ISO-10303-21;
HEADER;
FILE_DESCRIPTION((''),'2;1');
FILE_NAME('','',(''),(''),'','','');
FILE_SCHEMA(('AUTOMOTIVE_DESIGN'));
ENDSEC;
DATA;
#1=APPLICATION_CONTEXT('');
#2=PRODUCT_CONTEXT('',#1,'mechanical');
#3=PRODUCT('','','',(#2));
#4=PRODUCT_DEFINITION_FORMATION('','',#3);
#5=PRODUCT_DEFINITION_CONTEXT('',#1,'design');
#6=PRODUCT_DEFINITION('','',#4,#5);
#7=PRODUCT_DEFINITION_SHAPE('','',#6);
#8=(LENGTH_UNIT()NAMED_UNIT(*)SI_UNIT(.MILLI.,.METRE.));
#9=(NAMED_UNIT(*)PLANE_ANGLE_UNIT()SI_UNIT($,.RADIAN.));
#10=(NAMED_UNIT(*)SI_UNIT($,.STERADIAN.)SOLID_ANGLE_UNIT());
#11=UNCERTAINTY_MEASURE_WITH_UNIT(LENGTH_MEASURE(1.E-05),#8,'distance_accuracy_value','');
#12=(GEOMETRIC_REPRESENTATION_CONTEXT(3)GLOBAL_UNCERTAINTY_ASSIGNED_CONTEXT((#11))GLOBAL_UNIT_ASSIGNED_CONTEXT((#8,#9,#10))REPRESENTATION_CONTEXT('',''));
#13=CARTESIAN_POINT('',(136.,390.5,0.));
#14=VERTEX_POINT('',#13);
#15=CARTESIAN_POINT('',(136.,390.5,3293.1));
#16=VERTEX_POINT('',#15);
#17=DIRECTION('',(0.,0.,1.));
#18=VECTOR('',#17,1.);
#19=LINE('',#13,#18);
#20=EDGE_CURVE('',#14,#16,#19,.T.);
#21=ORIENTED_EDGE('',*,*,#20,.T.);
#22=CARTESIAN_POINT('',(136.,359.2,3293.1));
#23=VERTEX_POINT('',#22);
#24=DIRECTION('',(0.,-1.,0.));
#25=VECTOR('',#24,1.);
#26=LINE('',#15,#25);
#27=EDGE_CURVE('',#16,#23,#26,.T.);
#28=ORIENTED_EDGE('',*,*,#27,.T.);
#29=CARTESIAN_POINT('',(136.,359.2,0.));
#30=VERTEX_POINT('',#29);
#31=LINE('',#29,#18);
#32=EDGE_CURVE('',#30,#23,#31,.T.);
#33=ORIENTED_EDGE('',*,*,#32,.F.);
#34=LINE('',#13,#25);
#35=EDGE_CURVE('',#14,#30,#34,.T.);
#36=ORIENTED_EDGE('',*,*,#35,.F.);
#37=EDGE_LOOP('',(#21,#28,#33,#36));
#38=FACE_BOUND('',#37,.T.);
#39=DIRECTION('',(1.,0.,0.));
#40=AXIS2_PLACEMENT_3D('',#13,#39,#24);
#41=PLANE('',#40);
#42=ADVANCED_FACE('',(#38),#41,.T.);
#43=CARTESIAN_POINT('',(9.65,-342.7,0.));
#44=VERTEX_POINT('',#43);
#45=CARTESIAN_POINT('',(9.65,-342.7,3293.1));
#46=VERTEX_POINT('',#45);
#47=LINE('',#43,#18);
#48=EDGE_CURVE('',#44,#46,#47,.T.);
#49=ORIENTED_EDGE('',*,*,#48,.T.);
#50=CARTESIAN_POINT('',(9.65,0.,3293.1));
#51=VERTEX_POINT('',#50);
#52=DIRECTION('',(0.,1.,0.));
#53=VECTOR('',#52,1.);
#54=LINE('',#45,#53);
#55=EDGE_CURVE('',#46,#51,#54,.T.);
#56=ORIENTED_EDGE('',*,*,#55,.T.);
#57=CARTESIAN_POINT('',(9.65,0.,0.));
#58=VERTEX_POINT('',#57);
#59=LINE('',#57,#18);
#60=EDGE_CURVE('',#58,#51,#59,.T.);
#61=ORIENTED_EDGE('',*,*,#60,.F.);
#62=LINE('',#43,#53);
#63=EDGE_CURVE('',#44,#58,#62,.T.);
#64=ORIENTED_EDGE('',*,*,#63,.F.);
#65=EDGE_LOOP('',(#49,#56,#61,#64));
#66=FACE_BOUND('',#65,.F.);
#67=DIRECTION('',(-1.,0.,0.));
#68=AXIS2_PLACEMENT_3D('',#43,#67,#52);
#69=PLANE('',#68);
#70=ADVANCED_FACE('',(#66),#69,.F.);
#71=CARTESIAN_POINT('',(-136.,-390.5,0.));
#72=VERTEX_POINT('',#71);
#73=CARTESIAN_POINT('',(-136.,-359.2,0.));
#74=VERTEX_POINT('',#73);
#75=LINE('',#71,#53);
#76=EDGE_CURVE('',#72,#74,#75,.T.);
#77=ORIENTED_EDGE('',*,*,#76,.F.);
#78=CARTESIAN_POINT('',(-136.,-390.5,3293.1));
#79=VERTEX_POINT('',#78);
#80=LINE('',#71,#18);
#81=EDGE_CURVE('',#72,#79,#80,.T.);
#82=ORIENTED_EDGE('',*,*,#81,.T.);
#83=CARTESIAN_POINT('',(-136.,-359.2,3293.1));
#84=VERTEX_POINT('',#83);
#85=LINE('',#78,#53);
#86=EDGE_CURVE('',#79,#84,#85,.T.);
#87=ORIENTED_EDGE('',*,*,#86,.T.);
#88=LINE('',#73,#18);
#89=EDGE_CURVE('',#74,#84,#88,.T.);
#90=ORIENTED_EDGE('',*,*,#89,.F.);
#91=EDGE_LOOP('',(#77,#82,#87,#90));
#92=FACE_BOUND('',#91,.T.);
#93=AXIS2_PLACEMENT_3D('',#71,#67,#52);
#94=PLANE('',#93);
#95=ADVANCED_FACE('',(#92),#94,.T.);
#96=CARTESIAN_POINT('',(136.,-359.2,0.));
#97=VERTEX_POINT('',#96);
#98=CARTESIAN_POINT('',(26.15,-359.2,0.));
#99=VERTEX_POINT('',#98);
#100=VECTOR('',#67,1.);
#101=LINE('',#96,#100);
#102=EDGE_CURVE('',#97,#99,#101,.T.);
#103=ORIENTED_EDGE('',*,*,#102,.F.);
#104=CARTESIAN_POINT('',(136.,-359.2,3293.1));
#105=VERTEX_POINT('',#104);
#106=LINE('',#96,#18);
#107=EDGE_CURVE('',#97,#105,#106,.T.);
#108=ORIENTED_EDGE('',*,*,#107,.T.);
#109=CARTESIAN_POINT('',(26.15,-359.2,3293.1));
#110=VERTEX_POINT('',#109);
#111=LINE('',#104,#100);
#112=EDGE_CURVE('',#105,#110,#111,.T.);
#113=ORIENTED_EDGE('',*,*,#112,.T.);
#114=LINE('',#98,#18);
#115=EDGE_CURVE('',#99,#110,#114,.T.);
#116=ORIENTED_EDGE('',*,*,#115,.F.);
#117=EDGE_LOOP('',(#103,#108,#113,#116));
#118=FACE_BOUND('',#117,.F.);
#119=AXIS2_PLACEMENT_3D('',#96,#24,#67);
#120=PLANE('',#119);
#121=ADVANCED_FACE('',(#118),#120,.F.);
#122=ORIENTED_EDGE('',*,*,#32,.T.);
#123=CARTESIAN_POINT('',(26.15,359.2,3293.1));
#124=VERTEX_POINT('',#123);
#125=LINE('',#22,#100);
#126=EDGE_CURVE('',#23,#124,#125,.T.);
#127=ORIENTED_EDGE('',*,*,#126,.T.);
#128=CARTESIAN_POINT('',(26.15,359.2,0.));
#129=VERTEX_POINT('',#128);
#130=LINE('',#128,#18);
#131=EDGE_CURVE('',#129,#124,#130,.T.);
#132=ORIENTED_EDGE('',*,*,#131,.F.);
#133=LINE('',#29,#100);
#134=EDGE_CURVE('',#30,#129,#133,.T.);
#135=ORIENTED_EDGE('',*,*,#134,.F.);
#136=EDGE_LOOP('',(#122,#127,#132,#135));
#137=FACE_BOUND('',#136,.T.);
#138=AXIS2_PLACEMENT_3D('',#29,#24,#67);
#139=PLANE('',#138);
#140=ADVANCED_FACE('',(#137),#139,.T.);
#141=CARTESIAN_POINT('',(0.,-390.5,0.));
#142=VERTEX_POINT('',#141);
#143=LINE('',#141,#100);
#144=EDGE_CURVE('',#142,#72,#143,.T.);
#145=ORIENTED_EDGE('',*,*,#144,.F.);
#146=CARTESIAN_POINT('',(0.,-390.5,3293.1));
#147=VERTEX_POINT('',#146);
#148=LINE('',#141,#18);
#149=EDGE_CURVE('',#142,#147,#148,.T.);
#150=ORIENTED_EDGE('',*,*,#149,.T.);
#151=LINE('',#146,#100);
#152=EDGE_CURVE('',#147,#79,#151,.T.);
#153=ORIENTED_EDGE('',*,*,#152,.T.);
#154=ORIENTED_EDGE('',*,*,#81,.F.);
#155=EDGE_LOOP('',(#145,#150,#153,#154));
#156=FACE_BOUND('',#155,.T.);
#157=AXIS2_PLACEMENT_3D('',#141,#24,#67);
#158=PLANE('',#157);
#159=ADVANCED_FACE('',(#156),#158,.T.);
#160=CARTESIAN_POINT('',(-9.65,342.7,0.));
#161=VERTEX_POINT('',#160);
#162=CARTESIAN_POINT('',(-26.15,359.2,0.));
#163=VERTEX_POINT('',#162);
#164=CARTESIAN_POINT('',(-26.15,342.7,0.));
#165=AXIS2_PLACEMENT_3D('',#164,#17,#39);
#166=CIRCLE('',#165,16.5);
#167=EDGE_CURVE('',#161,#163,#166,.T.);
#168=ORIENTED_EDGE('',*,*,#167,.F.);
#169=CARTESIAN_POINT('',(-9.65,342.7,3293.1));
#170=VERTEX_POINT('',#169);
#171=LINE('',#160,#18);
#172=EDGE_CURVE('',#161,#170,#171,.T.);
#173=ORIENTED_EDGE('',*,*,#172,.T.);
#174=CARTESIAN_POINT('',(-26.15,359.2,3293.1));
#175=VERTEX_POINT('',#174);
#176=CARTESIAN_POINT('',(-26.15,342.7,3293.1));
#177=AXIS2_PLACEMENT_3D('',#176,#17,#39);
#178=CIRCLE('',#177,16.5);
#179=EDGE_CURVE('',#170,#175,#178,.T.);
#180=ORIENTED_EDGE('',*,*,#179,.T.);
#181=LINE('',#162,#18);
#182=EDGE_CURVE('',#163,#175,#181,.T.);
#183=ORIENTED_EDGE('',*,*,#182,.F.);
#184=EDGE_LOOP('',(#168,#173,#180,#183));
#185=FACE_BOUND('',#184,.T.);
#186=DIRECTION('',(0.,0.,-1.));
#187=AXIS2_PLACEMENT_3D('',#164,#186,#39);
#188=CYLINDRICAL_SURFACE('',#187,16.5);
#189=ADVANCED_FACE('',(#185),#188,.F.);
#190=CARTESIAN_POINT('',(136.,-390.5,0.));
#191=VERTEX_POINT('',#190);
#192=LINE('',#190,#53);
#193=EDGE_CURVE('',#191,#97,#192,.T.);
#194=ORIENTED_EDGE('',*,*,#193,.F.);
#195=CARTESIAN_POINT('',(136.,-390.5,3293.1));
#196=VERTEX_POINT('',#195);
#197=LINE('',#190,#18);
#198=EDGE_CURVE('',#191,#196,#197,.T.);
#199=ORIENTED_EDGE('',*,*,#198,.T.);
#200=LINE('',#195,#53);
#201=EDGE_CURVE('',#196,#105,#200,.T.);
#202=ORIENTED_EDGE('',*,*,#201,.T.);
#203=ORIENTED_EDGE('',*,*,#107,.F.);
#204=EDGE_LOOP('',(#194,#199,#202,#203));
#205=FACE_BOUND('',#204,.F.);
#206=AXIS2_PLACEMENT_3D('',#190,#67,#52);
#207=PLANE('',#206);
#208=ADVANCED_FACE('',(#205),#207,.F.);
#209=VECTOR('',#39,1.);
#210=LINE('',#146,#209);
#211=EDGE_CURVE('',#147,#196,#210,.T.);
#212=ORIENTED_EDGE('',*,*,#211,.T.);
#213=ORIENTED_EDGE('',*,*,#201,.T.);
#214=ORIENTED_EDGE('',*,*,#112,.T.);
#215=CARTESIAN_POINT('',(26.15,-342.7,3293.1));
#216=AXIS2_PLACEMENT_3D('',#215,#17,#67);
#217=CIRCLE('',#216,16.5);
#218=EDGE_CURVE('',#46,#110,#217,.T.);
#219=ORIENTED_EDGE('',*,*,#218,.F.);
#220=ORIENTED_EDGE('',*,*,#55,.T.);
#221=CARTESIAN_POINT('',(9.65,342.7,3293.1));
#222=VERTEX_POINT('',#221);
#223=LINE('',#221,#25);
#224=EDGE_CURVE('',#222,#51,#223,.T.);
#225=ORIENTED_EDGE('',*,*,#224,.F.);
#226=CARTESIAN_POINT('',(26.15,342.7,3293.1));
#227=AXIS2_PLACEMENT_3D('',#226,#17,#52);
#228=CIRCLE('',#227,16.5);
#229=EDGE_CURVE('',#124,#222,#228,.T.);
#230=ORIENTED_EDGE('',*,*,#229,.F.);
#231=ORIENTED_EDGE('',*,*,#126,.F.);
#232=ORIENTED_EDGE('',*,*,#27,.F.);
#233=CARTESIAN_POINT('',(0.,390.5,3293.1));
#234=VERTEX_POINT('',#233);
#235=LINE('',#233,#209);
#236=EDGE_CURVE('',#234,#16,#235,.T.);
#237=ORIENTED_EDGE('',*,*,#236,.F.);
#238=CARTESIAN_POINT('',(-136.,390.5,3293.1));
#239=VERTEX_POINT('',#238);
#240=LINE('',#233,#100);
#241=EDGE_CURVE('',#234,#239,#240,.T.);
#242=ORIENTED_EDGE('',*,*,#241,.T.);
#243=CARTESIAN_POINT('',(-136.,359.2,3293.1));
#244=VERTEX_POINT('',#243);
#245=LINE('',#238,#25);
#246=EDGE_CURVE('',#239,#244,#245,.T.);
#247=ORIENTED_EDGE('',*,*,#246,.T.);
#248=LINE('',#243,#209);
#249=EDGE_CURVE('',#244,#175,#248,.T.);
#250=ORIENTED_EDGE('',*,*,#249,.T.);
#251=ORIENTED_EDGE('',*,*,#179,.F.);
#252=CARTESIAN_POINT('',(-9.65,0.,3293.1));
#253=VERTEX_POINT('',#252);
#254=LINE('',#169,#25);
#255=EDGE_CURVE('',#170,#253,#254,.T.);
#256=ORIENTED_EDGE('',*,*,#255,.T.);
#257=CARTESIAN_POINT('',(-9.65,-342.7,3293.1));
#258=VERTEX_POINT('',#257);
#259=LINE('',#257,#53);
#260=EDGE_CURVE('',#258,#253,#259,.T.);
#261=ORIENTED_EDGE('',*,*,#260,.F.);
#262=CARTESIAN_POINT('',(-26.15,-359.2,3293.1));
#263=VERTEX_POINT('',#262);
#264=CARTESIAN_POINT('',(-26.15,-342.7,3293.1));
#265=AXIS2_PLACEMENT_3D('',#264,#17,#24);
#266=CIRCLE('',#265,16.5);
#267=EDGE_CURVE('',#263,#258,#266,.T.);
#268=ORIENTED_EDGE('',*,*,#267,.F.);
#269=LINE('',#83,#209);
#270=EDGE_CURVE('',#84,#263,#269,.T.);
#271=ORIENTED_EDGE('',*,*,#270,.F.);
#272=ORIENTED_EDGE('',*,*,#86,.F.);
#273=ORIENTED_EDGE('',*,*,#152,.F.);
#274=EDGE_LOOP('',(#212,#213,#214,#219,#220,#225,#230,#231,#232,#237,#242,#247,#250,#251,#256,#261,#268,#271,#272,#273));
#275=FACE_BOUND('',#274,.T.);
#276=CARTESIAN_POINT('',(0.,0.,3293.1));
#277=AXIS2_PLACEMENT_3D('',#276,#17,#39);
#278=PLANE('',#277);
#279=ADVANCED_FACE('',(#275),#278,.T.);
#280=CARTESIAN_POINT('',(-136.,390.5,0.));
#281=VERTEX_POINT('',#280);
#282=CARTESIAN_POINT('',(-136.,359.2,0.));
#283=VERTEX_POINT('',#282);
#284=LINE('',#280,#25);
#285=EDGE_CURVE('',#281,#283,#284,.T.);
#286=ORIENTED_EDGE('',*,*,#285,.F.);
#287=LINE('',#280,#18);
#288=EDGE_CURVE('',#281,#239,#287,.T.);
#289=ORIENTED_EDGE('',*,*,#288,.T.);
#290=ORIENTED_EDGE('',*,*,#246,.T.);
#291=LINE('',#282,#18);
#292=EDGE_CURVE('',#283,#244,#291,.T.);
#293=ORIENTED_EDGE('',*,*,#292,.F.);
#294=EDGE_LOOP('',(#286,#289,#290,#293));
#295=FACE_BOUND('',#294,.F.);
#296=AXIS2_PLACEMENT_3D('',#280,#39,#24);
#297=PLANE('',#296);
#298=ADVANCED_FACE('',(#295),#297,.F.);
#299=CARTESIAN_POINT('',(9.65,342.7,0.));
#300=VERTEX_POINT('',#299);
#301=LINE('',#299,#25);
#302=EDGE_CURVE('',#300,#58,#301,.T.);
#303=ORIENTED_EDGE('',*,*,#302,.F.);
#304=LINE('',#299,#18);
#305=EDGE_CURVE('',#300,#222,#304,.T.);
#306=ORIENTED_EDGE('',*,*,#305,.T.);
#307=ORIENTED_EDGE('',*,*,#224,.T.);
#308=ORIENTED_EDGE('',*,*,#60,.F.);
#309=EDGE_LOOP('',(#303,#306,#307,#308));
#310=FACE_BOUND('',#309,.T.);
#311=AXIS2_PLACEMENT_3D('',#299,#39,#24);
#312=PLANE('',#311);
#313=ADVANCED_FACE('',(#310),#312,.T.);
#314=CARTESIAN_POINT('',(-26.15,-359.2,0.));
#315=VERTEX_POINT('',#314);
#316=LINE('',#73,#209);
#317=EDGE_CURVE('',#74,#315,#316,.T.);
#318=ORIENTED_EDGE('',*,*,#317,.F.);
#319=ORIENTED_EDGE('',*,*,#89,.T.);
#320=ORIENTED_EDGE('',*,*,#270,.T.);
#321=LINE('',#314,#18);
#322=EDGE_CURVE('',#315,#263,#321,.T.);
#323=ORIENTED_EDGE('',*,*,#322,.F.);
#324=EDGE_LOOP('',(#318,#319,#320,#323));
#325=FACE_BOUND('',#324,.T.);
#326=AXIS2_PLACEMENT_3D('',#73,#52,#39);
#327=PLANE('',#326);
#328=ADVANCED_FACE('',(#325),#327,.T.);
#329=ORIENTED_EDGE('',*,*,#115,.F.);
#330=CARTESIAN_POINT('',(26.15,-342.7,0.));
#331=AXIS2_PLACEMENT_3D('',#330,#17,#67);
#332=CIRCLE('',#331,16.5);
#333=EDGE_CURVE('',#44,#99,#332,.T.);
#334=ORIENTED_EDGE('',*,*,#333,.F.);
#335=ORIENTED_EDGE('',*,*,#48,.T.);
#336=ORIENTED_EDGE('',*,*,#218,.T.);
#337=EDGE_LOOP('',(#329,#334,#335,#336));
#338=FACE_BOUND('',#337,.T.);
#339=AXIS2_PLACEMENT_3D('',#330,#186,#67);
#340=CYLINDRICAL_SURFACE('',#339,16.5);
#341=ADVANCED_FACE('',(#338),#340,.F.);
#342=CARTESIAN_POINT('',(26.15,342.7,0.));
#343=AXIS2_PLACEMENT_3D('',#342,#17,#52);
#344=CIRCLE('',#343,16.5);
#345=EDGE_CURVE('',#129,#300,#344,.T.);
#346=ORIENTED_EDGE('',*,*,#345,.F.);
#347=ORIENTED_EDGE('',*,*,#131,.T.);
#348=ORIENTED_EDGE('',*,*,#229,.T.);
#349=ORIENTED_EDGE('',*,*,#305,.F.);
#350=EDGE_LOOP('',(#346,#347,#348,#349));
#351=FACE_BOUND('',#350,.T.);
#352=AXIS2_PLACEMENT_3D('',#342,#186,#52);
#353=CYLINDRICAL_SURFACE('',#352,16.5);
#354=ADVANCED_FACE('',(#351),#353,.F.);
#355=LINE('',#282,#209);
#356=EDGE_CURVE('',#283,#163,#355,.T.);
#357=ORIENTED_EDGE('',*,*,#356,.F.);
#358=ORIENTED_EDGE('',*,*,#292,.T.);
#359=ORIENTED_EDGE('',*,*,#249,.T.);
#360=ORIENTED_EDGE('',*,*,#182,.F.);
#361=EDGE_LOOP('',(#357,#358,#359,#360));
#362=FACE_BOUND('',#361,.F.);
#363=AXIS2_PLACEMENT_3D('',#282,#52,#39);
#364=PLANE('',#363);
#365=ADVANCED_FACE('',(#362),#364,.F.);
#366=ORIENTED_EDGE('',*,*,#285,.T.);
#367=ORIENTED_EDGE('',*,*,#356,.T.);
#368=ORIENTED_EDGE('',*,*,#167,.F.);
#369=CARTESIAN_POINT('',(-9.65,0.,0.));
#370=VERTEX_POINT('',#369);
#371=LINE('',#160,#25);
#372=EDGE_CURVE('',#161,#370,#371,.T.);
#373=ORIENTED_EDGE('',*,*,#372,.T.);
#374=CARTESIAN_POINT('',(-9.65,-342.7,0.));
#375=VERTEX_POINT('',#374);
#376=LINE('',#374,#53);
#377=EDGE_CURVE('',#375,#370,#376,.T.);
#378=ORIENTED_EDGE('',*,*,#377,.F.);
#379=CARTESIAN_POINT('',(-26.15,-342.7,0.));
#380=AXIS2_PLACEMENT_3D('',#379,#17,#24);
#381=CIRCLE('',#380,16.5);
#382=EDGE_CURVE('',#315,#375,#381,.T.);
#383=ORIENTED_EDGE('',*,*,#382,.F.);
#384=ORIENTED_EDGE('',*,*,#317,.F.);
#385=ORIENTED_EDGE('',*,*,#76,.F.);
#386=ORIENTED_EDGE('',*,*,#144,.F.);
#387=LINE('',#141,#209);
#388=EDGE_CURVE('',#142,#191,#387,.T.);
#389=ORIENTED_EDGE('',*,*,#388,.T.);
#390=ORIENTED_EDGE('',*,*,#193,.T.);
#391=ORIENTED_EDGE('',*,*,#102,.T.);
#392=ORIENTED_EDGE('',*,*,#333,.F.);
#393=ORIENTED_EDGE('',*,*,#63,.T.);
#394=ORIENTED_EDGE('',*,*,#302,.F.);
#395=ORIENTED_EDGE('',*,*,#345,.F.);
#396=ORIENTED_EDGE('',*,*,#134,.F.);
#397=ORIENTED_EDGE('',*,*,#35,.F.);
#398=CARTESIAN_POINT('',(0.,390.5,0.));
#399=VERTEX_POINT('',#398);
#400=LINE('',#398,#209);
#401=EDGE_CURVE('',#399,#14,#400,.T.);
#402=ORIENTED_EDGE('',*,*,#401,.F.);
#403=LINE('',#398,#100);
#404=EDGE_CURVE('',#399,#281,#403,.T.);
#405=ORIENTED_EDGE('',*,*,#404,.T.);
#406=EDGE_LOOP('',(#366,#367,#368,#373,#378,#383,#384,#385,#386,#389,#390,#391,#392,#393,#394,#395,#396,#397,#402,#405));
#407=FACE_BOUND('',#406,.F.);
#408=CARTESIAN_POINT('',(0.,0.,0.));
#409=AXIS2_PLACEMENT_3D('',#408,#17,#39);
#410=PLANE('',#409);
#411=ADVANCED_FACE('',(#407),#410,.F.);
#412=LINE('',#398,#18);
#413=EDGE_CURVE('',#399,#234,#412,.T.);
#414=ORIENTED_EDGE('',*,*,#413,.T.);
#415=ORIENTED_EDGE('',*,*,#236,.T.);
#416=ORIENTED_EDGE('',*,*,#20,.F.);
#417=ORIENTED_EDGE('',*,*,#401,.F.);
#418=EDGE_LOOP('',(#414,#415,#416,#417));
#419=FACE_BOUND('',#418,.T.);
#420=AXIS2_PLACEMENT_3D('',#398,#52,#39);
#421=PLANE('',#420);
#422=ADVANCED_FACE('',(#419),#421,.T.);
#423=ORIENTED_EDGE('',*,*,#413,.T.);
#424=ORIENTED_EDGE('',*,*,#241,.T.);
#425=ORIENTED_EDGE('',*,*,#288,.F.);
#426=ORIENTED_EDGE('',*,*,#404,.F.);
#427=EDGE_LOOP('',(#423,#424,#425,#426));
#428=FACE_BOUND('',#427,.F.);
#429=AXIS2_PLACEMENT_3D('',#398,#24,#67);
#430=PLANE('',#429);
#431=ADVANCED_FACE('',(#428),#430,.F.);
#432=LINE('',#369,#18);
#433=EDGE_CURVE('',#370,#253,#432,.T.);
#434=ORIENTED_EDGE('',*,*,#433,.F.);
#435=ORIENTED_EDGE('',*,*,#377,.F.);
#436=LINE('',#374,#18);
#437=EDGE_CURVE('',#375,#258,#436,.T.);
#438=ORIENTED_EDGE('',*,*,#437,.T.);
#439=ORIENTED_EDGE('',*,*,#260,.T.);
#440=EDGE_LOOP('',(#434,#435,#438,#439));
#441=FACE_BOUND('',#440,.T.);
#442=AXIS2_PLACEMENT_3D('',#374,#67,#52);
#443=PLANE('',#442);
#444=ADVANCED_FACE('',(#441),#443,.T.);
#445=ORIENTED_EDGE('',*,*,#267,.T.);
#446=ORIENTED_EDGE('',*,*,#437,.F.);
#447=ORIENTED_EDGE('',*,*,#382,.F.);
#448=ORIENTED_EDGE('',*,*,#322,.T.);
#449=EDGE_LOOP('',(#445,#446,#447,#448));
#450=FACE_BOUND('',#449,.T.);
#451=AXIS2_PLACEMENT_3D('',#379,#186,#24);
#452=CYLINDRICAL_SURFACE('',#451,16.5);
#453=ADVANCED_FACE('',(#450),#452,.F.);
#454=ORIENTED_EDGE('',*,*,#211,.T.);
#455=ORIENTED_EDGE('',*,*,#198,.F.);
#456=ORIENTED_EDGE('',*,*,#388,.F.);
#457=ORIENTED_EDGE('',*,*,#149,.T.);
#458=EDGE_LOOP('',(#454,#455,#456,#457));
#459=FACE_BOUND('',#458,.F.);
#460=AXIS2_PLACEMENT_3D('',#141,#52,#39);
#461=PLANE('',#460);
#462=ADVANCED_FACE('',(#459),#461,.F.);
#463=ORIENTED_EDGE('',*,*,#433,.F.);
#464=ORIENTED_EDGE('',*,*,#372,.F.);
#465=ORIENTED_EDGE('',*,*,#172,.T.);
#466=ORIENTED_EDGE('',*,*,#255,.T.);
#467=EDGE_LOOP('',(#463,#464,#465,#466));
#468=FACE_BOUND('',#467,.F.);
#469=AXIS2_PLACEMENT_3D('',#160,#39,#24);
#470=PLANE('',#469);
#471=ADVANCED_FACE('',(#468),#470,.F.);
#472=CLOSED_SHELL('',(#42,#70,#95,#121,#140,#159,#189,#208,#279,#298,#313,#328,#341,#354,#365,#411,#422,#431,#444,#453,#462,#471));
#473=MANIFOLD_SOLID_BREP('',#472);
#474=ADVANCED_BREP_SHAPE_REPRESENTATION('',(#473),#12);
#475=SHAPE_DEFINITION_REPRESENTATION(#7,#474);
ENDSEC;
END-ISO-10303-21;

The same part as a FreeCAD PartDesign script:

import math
import FreeCAD as App
import Part
import Sketcher
Q = App.Units.Quantity

doc = App.newDocument("Part")
body = doc.addObject("PartDesign::Body", "Body")

# Sketch on XY plane
sketch1 = body.newObject("Sketcher::SketchObject", "Sketch")
sketch1.AttachmentSupport = (doc.getObject("XY_Plane"), [""])
sketch1.MapMode = "FlatFace"
sketch1.addGeometry([
    Part.LineSegment(App.Vector(-136, -359.2, 0), App.Vector(-136, -390.5, 0)),  # 0
    Part.LineSegment(App.Vector(-136, -390.5, 0), App.Vector(136, -390.5, 0)),  # 1
    Part.LineSegment(App.Vector(136, -390.5, 0), App.Vector(136, -359.2, 0)),  # 2
    Part.LineSegment(App.Vector(136, -359.2, 0), App.Vector(26.15, -359.2, 0)),  # 3
    Part.ArcOfCircle(Part.Circle(App.Vector(26.15, -342.7, 0), App.Vector(0, 0, 1), 16.5), math.radians(180), math.radians(270)),  # 4
    Part.LineSegment(App.Vector(9.65, -342.7, 0), App.Vector(9.65, 342.7, 0)),  # 5
    Part.ArcOfCircle(Part.Circle(App.Vector(26.15, 342.7, 0), App.Vector(0, 0, 1), 16.5), math.radians(90), math.radians(180)),  # 6
    Part.LineSegment(App.Vector(26.15, 359.2, 0), App.Vector(136, 359.2, 0)),  # 7
    Part.LineSegment(App.Vector(136, 359.2, 0), App.Vector(136, 390.5, 0)),  # 8
    Part.LineSegment(App.Vector(136, 390.5, 0), App.Vector(-136, 390.5, 0)),  # 9
    Part.LineSegment(App.Vector(-136, 390.5, 0), App.Vector(-136, 359.2, 0)),  # 10
    Part.LineSegment(App.Vector(-136, 359.2, 0), App.Vector(-26.15, 359.2, 0)),  # 11
    Part.ArcOfCircle(Part.Circle(App.Vector(-26.15, 342.7, 0), App.Vector(0, 0, 1), 16.5), math.radians(0), math.radians(90)),  # 12
    Part.LineSegment(App.Vector(-9.65, 342.7, 0), App.Vector(-9.65, -342.7, 0)),  # 13
    Part.ArcOfCircle(Part.Circle(App.Vector(-26.15, -342.7, 0), App.Vector(0, 0, 1), 16.5), math.radians(-90), math.radians(0)),  # 14
    Part.LineSegment(App.Vector(-26.15, -359.2, 0), App.Vector(-136, -359.2, 0)),  # 15
], False)
sketch1.addConstraint([
    Sketcher.Constraint("Coincident", 0, 2, 1, 1),
    Sketcher.Constraint("Coincident", 1, 2, 2, 1),
    Sketcher.Constraint("Coincident", 2, 2, 3, 1),
    Sketcher.Constraint("Tangent", 3, 2, 4, 2),
    Sketcher.Constraint("Tangent", 4, 1, 5, 1),
    Sketcher.Constraint("Tangent", 5, 2, 6, 2),
    Sketcher.Constraint("Tangent", 6, 1, 7, 1),
    Sketcher.Constraint("Coincident", 7, 2, 8, 1),
    Sketcher.Constraint("Coincident", 8, 2, 9, 1),
    Sketcher.Constraint("Coincident", 9, 2, 10, 1),
    Sketcher.Constraint("Coincident", 10, 2, 11, 1),
    Sketcher.Constraint("Tangent", 11, 2, 12, 2),
    Sketcher.Constraint("Tangent", 12, 1, 13, 1),
    Sketcher.Constraint("Tangent", 13, 2, 14, 2),
    Sketcher.Constraint("Tangent", 14, 1, 15, 1),
    Sketcher.Constraint("Coincident", 15, 2, 0, 1),
    Sketcher.Constraint("Vertical", 0),
    Sketcher.Constraint("Horizontal", 1),
    Sketcher.Constraint("Vertical", 2),
    Sketcher.Constraint("Horizontal", 3),
    Sketcher.Constraint("Vertical", 5),
    Sketcher.Constraint("Horizontal", 7),
    Sketcher.Constraint("Vertical", 8),
    Sketcher.Constraint("Horizontal", 9),
    Sketcher.Constraint("Vertical", 10),
    Sketcher.Constraint("Horizontal", 11),
    Sketcher.Constraint("Vertical", 13),
    Sketcher.Constraint("Horizontal", 15),
    Sketcher.Constraint("Equal", 4, 6),
    Sketcher.Constraint("Equal", 6, 12),
    Sketcher.Constraint("Equal", 12, 14),
    Sketcher.Constraint("Symmetric", 4, 3, 12, 3, -1, 1),
    Sketcher.Constraint("Symmetric", 0, 2, 8, 2, -1, 1),
    Sketcher.Constraint("Symmetric", 7, 2, 10, 2, -2),
    Sketcher.Constraint("Symmetric", 2, 2, 15, 2, -2),
    Sketcher.Constraint("Radius", 4, Q("16.5 mm")),
    Sketcher.Constraint("DistanceY", 0, 2, 0, 1, Q("31.3 mm")),
    Sketcher.Constraint("DistanceX", 0, 2, -1, 1, Q("136 mm")),
    Sketcher.Constraint("DistanceY", 0, 2, -1, 1, Q("390.5 mm")),
    Sketcher.Constraint("DistanceX", -1, 1, 4, 1, Q("9.65 mm")),
])
pad1 = body.newObject("PartDesign::Pad", "Pad")
pad1.Profile = sketch1
pad1.Length = 3293.1

doc.recompute()
